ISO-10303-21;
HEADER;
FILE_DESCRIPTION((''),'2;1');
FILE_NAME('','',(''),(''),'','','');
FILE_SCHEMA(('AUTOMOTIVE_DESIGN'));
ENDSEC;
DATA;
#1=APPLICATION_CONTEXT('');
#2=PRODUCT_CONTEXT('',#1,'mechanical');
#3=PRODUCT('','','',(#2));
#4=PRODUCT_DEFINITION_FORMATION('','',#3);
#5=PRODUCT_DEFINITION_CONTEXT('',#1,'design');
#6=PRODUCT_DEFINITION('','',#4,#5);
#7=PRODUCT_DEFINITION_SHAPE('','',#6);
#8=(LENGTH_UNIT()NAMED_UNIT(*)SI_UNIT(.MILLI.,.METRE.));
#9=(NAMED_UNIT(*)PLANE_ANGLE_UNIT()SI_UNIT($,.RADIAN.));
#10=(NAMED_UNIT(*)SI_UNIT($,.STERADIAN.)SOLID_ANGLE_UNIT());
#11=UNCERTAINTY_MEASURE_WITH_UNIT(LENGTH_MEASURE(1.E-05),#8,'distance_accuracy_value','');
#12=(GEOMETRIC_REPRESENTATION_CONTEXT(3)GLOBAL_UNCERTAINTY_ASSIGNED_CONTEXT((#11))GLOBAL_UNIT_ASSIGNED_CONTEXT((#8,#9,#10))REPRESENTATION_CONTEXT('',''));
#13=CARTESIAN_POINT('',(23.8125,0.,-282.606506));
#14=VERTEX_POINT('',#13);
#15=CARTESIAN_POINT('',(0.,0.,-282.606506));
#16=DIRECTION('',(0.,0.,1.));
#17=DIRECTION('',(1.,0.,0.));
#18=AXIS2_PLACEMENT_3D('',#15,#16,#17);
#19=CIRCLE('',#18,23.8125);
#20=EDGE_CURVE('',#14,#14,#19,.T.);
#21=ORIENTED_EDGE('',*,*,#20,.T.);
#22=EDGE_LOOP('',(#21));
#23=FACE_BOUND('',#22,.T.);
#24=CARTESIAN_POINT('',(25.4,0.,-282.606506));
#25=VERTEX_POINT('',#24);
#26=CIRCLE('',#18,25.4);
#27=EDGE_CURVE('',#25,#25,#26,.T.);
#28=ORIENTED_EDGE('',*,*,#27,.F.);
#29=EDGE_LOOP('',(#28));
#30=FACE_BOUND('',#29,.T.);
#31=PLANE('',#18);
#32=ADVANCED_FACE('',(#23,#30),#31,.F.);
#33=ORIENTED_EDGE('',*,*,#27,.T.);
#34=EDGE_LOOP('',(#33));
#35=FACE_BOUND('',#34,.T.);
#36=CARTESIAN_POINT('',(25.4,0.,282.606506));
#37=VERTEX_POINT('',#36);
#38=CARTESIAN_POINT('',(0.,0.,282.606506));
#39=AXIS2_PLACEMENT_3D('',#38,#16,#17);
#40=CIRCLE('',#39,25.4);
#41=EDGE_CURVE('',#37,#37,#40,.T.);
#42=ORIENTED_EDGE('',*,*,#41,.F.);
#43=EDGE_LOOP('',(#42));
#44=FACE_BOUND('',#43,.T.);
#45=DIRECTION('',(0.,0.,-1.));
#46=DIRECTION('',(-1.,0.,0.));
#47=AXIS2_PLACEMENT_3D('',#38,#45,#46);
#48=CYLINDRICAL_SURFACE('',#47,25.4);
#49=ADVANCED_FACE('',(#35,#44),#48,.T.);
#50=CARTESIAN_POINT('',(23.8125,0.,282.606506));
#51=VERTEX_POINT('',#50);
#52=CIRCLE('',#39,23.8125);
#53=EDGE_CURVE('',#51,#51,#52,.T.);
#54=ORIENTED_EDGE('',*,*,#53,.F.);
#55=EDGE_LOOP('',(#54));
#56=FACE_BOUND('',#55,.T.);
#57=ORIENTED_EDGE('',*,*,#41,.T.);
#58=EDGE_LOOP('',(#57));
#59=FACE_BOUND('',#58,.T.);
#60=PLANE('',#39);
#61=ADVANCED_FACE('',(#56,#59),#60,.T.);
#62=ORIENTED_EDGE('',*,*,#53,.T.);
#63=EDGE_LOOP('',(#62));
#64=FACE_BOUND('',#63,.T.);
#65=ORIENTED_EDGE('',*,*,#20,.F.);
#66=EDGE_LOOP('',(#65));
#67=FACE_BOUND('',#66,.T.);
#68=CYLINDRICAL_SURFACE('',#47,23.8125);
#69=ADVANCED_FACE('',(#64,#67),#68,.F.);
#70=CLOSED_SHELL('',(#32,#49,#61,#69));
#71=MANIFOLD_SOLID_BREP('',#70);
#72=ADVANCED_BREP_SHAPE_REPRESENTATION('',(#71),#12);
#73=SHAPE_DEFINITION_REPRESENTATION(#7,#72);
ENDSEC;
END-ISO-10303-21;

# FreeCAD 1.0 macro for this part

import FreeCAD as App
import Part
import Sketcher
Q = App.Units.Quantity

doc = App.newDocument("Part")
body = doc.addObject("PartDesign::Body", "Body")

sketch1 = body.newObject("Sketcher::SketchObject", "Sketch")
sketch1.AttachmentSupport = (doc.getObject("XY_Plane"), [""])
sketch1.MapMode = "FlatFace"
sketch1.addGeometry(Part.Circle(App.Vector(0, 0, 0), App.Vector(0, 0, 1), 25), False)
sketch1.addGeometry(Part.Circle(App.Vector(0, 0, 0), App.Vector(0, 0, 1), 24), False)
sketch1.addConstraint(Sketcher.Constraint("Coincident", 0, 3, -1, 1))
sketch1.addConstraint(Sketcher.Constraint("Coincident", 1, 3, -1, 1))
sketch1.addConstraint(Sketcher.Constraint("Diameter", 0, Q("2 in")))
sketch1.addConstraint(Sketcher.Constraint("Diameter", 1, Q("1.875 in")))
pad1 = body.newObject("PartDesign::Pad", "Pad")
pad1.Profile = sketch1
pad1.Length = 565.213013
pad1.Midplane = True

doc.recompute()
